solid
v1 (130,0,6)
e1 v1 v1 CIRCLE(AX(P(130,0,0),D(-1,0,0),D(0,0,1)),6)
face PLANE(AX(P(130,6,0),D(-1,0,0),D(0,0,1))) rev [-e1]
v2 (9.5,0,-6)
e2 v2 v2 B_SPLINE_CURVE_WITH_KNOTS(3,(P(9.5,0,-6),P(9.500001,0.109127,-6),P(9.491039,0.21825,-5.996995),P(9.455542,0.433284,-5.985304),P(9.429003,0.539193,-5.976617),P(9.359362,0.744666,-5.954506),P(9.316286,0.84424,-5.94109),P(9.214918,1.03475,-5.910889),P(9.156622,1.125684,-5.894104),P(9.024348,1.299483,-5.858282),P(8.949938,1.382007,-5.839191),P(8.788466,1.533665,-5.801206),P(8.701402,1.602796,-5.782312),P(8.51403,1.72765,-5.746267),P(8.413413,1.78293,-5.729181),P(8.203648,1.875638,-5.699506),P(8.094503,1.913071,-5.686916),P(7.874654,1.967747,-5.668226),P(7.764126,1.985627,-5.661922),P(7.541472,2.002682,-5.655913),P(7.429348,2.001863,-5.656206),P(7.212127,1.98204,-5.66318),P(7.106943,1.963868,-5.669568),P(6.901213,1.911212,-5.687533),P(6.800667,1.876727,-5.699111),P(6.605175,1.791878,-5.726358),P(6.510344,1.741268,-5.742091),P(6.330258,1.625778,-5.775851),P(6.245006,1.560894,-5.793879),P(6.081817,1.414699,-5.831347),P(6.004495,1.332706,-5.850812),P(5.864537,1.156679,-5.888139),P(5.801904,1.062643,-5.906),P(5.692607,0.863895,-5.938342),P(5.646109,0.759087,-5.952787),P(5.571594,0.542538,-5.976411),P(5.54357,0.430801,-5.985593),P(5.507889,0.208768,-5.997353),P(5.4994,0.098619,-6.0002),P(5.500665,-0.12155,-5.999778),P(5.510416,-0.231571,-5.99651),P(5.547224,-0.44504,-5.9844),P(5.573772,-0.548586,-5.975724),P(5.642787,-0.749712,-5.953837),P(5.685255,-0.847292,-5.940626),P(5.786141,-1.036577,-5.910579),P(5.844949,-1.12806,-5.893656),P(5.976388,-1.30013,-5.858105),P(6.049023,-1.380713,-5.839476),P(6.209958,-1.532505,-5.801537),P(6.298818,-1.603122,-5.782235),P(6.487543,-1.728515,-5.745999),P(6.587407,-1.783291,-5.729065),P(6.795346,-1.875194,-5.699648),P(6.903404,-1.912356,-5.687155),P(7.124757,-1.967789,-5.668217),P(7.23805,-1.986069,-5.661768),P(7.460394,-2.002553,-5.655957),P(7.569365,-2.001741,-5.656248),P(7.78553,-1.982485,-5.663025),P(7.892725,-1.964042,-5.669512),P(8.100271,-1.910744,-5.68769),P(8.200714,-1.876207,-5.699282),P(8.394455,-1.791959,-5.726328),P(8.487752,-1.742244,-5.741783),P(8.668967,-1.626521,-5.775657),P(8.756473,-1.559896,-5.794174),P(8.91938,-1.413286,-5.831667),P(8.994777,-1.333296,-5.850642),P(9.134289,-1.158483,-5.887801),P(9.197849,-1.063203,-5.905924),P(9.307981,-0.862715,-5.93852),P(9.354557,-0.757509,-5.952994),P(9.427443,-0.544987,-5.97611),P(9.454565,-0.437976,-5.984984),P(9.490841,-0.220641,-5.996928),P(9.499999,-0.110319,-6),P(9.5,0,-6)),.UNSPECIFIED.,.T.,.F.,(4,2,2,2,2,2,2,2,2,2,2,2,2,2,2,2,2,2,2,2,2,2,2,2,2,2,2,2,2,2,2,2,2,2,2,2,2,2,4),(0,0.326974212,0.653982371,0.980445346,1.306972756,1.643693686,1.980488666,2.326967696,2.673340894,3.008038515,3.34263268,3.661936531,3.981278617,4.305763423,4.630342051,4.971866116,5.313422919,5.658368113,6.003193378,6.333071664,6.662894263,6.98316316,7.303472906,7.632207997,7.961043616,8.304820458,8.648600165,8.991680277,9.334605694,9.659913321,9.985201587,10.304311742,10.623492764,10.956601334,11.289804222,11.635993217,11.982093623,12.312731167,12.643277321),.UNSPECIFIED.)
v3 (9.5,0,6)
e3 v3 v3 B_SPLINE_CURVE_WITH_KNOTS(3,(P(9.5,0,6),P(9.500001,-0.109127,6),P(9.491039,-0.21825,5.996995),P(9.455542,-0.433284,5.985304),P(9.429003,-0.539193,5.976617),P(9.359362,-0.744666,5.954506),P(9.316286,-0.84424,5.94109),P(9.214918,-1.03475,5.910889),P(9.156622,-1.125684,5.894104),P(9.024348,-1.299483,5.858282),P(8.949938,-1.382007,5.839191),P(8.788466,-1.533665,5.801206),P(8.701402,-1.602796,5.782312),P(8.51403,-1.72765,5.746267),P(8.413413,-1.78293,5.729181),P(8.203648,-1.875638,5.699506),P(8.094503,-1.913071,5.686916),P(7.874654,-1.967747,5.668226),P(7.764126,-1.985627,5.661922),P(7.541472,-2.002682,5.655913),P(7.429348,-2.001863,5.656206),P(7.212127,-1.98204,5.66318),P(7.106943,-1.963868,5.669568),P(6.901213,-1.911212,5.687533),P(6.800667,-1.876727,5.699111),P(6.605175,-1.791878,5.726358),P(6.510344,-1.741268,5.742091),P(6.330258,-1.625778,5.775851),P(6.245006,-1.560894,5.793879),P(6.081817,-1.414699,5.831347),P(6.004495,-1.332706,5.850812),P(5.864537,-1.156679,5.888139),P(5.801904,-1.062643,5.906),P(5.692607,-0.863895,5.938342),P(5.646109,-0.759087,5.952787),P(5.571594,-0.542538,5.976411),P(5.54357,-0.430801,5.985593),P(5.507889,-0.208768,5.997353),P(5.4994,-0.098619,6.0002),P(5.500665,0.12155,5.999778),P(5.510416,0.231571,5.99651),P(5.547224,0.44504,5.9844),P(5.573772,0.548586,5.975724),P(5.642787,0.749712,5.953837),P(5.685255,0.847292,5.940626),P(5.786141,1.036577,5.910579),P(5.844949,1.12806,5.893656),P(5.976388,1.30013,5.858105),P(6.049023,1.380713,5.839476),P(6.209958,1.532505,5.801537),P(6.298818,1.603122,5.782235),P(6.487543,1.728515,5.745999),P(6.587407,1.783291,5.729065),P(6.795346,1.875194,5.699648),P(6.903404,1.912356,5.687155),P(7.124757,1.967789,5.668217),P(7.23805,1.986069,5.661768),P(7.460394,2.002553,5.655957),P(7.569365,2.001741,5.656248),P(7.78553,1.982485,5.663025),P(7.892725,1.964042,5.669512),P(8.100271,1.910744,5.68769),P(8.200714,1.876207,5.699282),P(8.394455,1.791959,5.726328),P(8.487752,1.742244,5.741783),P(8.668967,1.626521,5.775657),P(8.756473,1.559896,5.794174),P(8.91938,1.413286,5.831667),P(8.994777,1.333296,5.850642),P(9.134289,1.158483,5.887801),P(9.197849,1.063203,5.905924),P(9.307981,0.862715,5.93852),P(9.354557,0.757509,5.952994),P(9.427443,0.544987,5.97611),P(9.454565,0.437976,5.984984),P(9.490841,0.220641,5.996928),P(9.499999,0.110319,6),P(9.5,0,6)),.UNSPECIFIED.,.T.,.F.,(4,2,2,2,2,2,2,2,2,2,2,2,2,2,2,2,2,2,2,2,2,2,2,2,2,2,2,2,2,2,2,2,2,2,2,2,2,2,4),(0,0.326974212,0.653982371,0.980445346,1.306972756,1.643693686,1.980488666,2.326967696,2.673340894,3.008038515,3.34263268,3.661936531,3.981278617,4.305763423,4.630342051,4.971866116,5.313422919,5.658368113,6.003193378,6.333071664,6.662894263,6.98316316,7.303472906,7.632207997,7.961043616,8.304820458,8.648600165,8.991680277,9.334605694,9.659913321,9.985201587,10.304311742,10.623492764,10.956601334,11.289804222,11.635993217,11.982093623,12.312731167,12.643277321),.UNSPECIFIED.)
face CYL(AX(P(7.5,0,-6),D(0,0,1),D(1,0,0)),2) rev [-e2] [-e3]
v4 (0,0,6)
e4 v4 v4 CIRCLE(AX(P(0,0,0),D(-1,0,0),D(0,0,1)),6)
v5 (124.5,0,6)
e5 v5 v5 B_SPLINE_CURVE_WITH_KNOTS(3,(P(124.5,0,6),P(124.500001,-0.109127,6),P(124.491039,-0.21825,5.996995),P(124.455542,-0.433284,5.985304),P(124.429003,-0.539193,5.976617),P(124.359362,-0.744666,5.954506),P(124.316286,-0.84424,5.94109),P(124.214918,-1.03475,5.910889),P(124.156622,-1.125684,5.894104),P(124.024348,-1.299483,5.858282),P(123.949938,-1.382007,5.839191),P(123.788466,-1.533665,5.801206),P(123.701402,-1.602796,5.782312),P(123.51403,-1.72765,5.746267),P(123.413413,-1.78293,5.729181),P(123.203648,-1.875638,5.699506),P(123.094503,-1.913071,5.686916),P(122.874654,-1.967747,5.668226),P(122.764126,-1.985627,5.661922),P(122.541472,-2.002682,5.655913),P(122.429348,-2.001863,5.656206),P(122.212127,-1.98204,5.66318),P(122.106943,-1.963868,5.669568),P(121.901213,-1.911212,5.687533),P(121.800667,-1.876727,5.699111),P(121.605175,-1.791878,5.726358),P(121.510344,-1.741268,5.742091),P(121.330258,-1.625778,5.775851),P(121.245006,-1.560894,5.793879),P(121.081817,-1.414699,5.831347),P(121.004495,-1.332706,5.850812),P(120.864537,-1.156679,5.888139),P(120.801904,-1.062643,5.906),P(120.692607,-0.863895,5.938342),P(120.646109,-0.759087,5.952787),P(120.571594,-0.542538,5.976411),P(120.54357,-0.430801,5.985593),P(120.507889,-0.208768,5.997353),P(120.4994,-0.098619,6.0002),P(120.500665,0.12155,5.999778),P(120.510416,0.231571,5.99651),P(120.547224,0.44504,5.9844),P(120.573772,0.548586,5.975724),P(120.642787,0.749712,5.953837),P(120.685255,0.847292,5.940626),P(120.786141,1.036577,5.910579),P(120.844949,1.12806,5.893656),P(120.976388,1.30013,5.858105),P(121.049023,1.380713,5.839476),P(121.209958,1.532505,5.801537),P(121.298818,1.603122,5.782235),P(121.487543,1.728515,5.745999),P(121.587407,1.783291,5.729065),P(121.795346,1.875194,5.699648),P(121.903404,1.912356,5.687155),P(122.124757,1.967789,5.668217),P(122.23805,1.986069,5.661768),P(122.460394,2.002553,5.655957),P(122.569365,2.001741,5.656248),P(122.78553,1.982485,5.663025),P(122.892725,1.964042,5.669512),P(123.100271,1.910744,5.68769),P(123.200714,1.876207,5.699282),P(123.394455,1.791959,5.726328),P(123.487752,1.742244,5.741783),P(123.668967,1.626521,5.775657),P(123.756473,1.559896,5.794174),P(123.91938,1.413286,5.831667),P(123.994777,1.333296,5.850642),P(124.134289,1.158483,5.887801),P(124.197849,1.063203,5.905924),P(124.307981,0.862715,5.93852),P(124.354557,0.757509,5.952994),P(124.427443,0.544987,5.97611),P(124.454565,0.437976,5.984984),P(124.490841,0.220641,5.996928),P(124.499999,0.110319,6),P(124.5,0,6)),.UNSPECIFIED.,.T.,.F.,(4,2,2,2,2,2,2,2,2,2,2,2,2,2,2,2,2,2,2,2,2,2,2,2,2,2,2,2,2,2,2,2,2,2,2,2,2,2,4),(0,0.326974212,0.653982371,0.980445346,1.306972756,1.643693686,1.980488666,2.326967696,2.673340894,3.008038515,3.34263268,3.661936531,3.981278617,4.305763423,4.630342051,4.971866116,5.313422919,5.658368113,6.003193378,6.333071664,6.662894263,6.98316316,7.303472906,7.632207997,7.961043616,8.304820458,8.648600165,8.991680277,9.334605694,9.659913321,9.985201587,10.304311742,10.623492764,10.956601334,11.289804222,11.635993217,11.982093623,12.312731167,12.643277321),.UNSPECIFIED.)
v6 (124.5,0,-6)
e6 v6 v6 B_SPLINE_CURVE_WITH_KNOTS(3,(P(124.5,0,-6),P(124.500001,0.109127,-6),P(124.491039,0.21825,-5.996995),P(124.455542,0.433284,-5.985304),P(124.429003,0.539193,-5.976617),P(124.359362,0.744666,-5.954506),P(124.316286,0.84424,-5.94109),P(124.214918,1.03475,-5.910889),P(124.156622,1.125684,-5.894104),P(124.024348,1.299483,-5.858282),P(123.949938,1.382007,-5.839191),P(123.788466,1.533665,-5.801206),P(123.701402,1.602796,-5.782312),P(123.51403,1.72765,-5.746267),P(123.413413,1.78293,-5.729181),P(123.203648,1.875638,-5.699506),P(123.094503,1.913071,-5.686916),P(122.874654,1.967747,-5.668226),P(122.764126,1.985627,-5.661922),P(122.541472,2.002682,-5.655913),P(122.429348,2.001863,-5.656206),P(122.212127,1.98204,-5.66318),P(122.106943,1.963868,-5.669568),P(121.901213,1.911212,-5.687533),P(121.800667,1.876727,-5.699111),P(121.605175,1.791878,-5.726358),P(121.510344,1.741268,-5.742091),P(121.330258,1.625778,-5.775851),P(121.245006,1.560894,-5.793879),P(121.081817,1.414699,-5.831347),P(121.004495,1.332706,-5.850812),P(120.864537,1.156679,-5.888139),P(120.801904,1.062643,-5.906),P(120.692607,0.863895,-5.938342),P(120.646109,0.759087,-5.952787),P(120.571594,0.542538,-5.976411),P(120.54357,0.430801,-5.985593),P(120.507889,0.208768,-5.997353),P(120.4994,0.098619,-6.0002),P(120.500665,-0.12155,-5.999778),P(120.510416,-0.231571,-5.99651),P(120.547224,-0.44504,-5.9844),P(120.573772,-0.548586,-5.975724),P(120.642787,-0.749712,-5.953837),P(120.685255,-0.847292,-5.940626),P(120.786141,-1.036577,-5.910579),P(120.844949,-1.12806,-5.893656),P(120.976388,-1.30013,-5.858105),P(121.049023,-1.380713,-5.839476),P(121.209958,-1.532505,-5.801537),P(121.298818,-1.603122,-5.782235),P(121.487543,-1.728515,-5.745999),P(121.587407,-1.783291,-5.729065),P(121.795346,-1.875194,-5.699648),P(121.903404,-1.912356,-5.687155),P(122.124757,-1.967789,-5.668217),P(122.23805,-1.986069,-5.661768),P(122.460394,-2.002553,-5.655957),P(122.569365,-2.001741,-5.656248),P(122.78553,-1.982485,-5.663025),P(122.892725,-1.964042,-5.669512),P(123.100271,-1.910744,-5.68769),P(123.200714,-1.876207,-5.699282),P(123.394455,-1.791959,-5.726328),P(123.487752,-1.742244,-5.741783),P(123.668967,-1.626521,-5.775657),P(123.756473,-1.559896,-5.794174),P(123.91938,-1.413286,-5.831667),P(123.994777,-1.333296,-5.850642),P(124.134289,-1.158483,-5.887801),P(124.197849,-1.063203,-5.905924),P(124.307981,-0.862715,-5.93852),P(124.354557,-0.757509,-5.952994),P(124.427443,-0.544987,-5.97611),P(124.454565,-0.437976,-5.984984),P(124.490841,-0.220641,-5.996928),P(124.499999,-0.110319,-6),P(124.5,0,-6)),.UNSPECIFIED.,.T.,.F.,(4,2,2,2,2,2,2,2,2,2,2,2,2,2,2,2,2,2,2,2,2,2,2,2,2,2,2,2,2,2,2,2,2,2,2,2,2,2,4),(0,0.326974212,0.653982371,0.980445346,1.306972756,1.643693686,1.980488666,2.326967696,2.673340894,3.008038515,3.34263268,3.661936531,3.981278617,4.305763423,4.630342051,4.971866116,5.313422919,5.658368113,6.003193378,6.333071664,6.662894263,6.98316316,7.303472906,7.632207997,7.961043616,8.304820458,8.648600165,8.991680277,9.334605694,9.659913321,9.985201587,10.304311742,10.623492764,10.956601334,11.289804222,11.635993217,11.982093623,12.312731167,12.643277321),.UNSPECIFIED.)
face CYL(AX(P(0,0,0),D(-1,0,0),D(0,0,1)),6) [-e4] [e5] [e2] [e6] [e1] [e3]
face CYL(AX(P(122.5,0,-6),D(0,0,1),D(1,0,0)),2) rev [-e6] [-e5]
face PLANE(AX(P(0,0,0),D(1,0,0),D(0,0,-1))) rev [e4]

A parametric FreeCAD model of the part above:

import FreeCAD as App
import Part
import Sketcher
Q = App.Units.Quantity

doc = App.newDocument("Part")
params = doc.addObject("Spreadsheet::Sheet", "Params")
for row, (alias, value) in enumerate([
    ("sketch1_width", "130 mm"),
    ("sketch1_height", "6 mm"),
    ("revolution_angle", "360 deg"),
    ("sketch2_diameter", "4 mm"),
    ("sketch3_diameter", "4 mm"),
], start=1):
    params.set(f"A{row}", alias)
    params.set(f"B{row}", "=" + value)
    params.setAlias(f"B{row}", alias)

body = doc.addObject("PartDesign::Body", "Body")

# Sketch on XY plane
sketch1 = body.newObject("Sketcher::SketchObject", "Sketch")
sketch1.AttachmentSupport = (doc.getObject("XY_Plane"), [""])
sketch1.MapMode = "FlatFace"
sketch1.addGeometry(Part.LineSegment(App.Vector(0, 6, 0), App.Vector(0, 0, 0)), False)
sketch1.addGeometry(Part.LineSegment(App.Vector(0, 0, 0), App.Vector(130, 0, 0)), False)
sketch1.addGeometry(Part.LineSegment(App.Vector(130, 0, 0), App.Vector(130, 6, 0)), False)
sketch1.addGeometry(Part.LineSegment(App.Vector(130, 6, 0), App.Vector(0, 6, 0)), False)
sketch1.addConstraint(Sketcher.Constraint("Coincident", 0, 2, 1, 1))
sketch1.addConstraint(Sketcher.Constraint("Coincident", 1, 2, 2, 1))
sketch1.addConstraint(Sketcher.Constraint("Coincident", 2, 2, 3, 1))
sketch1.addConstraint(Sketcher.Constraint("Coincident", 3, 2, 0, 1))
sketch1.addConstraint(Sketcher.Constraint("Vertical", 0))
sketch1.addConstraint(Sketcher.Constraint("Horizontal", 1))
sketch1.addConstraint(Sketcher.Constraint("Vertical", 2))
sketch1.addConstraint(Sketcher.Constraint("Horizontal", 3))
sketch1.addConstraint(Sketcher.Constraint("Coincident", 0, 2, -1, 1))
sketch1.addConstraint(Sketcher.Constraint("DistanceX", 1, 1, 1, 2, Q("130 mm")))
sketch1.addConstraint(Sketcher.Constraint("DistanceY", 0, 2, 0, 1, Q("6 mm")))
sketch1.setExpression("Constraints[9]", "Params.sketch1_width")
sketch1.setExpression("Constraints[10]", "Params.sketch1_height")
revolution = body.newObject("PartDesign::Revolution", "Revolution")
revolution.Profile = sketch1
revolution.ReferenceAxis = (sketch1, ["H_Axis"])
revolution.setExpression("Angle", "Params.revolution_angle")

# Sketch on XY plane
sketch2 = body.newObject("Sketcher::SketchObject", "Sketch001")
sketch2.AttachmentSupport = (doc.getObject("XY_Plane"), [""])
sketch2.MapMode = "FlatFace"
sketch2.addGeometry(Part.Circle(App.Vector(7.5, 0, 0), App.Vector(0, 0, 1), 2), False)
sketch2.addConstraint(Sketcher.Constraint("PointOnObject", 0, 3, -1))
sketch2.addConstraint(Sketcher.Constraint("Diameter", 0, Q("4 mm")))
sketch2.addConstraint(Sketcher.Constraint("DistanceX", -1, 1, 0, 3, Q("7.5 mm")))
sketch2.setExpression("Constraints[1]", "Params.sketch2_diameter")
pocket1 = body.newObject("PartDesign::Pocket", "Pocket")
pocket1.Profile = sketch2
pocket1.Type = "ThroughAll"
pocket1.Midplane = True

# Sketch on XY plane
sketch3 = body.newObject("Sketcher::SketchObject", "Sketch002")
sketch3.AttachmentSupport = (doc.getObject("XY_Plane"), [""])
sketch3.MapMode = "FlatFace"
sketch3.addGeometry(Part.Circle(App.Vector(122.5, 0, 0), App.Vector(0, 0, 1), 2), False)
sketch3.addConstraint(Sketcher.Constraint("PointOnObject", 0, 3, -1))
sketch3.addConstraint(Sketcher.Constraint("Diameter", 0, Q("4 mm")))
sketch3.addConstraint(Sketcher.Constraint("DistanceX", -1, 1, 0, 3, Q("122.5 mm")))
sketch3.setExpression("Constraints[1]", "Params.sketch3_diameter")
pocket2 = body.newObject("PartDesign::Pocket", "Pocket001")
pocket2.Profile = sketch3
pocket2.Type = "ThroughAll"
pocket2.Midplane = True

doc.recompute()
